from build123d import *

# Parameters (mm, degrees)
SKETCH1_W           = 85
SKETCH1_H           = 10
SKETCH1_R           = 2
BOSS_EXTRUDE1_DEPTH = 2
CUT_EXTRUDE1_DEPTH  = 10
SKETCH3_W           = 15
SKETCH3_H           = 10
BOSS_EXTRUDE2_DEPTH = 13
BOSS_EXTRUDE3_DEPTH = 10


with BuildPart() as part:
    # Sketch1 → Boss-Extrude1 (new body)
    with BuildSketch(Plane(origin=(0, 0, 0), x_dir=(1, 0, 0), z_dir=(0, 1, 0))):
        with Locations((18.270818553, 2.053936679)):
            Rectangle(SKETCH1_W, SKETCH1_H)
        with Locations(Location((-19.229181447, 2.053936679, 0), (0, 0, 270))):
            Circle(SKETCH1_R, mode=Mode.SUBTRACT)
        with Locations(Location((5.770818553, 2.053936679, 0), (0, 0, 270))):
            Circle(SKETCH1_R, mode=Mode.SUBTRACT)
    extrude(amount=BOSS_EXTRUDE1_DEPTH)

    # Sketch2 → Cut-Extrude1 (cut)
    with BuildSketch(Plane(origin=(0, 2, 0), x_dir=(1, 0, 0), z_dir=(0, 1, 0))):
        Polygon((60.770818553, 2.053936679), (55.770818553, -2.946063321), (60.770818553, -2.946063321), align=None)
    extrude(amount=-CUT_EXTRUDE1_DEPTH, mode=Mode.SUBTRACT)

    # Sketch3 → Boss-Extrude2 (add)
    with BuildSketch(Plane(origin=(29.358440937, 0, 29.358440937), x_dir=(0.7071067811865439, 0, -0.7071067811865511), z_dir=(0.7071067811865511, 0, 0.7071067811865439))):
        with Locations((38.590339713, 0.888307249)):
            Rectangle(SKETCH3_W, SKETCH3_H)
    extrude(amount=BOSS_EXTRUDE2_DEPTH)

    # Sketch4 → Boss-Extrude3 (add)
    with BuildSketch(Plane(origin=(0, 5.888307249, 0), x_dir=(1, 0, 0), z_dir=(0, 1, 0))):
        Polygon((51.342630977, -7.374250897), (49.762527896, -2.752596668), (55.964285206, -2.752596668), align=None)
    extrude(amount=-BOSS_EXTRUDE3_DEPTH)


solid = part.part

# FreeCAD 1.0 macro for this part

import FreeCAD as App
import Part
import Sketcher
Q = App.Units.Quantity

doc = App.newDocument("Part")
body = doc.addObject("PartDesign::Body", "Body")

# Sketch on XZ plane
sketch1 = body.newObject("Sketcher::SketchObject", "Sketch")
sketch1.AttachmentSupport = (doc.getObject("XZ_Plane"), [""])
sketch1.MapMode = "FlatFace"
sketch1.addGeometry([
    Part.LineSegment(App.Vector(-24.2, -7.1, 0), App.Vector(-24.2, 2.9, 0)),  # 0
    Part.LineSegment(App.Vector(-24.2, 2.9, 0), App.Vector(60.8, 2.9, 0)),  # 1
    Part.LineSegment(App.Vector(60.8, 2.9, 0), App.Vector(60.8, -7.1, 0)),  # 2
    Part.LineSegment(App.Vector(60.8, -7.1, 0), App.Vector(-24.2, -7.1, 0)),  # 3
    Part.Circle(App.Vector(-19.2, -2.1, 0), App.Vector(0, 0, 1), 2),  # 4
    Part.Circle(App.Vector(5.8, -2.1, 0), App.Vector(0, 0, 1), 2),  # 5
], False)
sketch1.addConstraint([
    Sketcher.Constraint("Coincident", 0, 2, 1, 1),
    Sketcher.Constraint("Coincident", 1, 2, 2, 1),
    Sketcher.Constraint("Coincident", 2, 2, 3, 1),
    Sketcher.Constraint("Coincident", 3, 2, 0, 1),
    Sketcher.Constraint("Vertical", 0),
    Sketcher.Constraint("Horizontal", 1),
    Sketcher.Constraint("Vertical", 2),
    Sketcher.Constraint("Horizontal", 3),
    Sketcher.Constraint("Equal", 4, 5),
    Sketcher.Constraint("Horizontal", 4, 3, 5, 3),
    Sketcher.Constraint("Diameter", 4, Q("4 mm")),
    Sketcher.Constraint("DistanceX", 1, 1, 1, 2, Q("85 mm")),
    Sketcher.Constraint("DistanceY", 0, 1, 0, 2, Q("10 mm")),
    Sketcher.Constraint("DistanceX", 4, 3, 5, 3, Q("25 mm")),
    Sketcher.Constraint("DistanceX", 0, 2, 4, 3, Q("5 mm")),
    Sketcher.Constraint("DistanceY", 4, 3, 0, 2, Q("5 mm")),
    Sketcher.Constraint("DistanceX", 4, 3, -1, 1, Q("19.229181 mm")),
    Sketcher.Constraint("DistanceY", 4, 3, -1, 1, Q("2.053937 mm")),
])
pad1 = body.newObject("PartDesign::Pad", "Pad")
pad1.Profile = sketch1
pad1.Length = 2
pad1.Reversed = True

# Sketch on XZ plane
sketch2 = body.newObject("Sketcher::SketchObject", "Sketch001")
sketch2.AttachmentSupport = (doc.getObject("XZ_Plane"), [""])
sketch2.MapMode = "FlatFace"
sketch2.AttachmentOffset = App.Placement(App.Vector(0, 0, -2), App.Rotation())
sketch2.addGeometry([
    Part.LineSegment(App.Vector(61, -2, 0), App.Vector(56, 3, 0)),
    Part.LineSegment(App.Vector(56, 3, 0), App.Vector(61, 3, 0)),
    Part.LineSegment(App.Vector(61, 3, 0), App.Vector(61, -2, 0)),
], False)
sketch2.addConstraint([
    Sketcher.Constraint("Coincident", 0, 2, 1, 1),
    Sketcher.Constraint("Coincident", 1, 2, 2, 1),
    Sketcher.Constraint("Coincident", 2, 2, 0, 1),
    Sketcher.Constraint("Horizontal", 1),
    Sketcher.Constraint("Vertical", 2),
    Sketcher.Constraint("Equal", 1, 2),
    Sketcher.Constraint("DistanceX", 1, 1, 1, 2, Q("5 mm")),
    Sketcher.Constraint("DistanceX", -1, 1, 0, 2, Q("55.770819 mm")),
    Sketcher.Constraint("DistanceY", -1, 1, 0, 2, Q("2.946063 mm")),
])
pocket1 = body.newObject("PartDesign::Pocket", "Pocket")
pocket1.Profile = sketch2
pocket1.Length = 10
pocket1.Reversed = True

# Sketch on an angled plane
sketch3 = body.newObject("Sketcher::SketchObject", "Sketch002")
sketch3.Placement = App.Placement(App.Vector(29.358441, 0, 29.358441), App.Rotation(App.Vector(0.707106781, 0, -0.707106781), App.Vector(0, 0.999999999, 0), App.Vector(0.707106781, 0, 0.707106781), "ZXY"))
sketch3.addGeometry([
    Part.LineSegment(App.Vector(31, 6, 0), App.Vector(31, -4, 0)),
    Part.LineSegment(App.Vector(31, -4, 0), App.Vector(46, -4, 0)),
    Part.LineSegment(App.Vector(46, -4, 0), App.Vector(46, 6, 0)),
    Part.LineSegment(App.Vector(46, 6, 0), App.Vector(31, 6, 0)),
], False)
sketch3.addConstraint([
    Sketcher.Constraint("Coincident", 0, 2, 1, 1),
    Sketcher.Constraint("Coincident", 1, 2, 2, 1),
    Sketcher.Constraint("Coincident", 2, 2, 3, 1),
    Sketcher.Constraint("Coincident", 3, 2, 0, 1),
    Sketcher.Constraint("Vertical", 0),
    Sketcher.Constraint("Horizontal", 1),
    Sketcher.Constraint("Vertical", 2),
    Sketcher.Constraint("Horizontal", 3),
    Sketcher.Constraint("DistanceX", 1, 1, 1, 2, Q("15 mm")),
    Sketcher.Constraint("DistanceY", 0, 2, 0, 1, Q("10 mm")),
    Sketcher.Constraint("DistanceX", -1, 1, 0, 2, Q("31.09034 mm")),
    Sketcher.Constraint("DistanceY", 0, 2, -1, 1, Q("4.111693 mm")),
])
pad2 = body.newObject("PartDesign::Pad", "Pad001")
pad2.Profile = sketch3
pad2.Length = 13

# Sketch on XZ plane
sketch4 = body.newObject("Sketcher::SketchObject", "Sketch003")
sketch4.AttachmentSupport = (doc.getObject("XZ_Plane"), [""])
sketch4.MapMode = "FlatFace"
sketch4.AttachmentOffset = App.Placement(App.Vector(0, 0, -5.888307), App.Rotation())
sketch4.addGeometry([
    Part.LineSegment(App.Vector(49.8, 2.8, 0), App.Vector(51.3, 7.4, 0)),
    Part.LineSegment(App.Vector(51.3, 7.4, 0), App.Vector(56, 2.8, 0)),
    Part.LineSegment(App.Vector(56, 2.8, 0), App.Vector(49.8, 2.8, 0)),
], False)
sketch4.addConstraint([
    Sketcher.Constraint("Coincident", 0, 2, 1, 1),
    Sketcher.Constraint("Coincident", 1, 2, 2, 1),
    Sketcher.Constraint("Coincident", 2, 2, 0, 1),
    Sketcher.Constraint("Horizontal", 2),
    Sketcher.Constraint("Angle", 1, Q("-45 deg")),
    Sketcher.Constraint("DistanceX", 2, 2, 2, 1, Q("6.201757 mm")),
    Sketcher.Constraint("DistanceX", -1, 1, 0, 2, Q("51.342631 mm")),
    Sketcher.Constraint("DistanceY", -1, 1, 0, 2, Q("7.374251 mm")),
    Sketcher.Constraint("Distance", 0, Q("4.884303 mm")),
])
pad3 = body.newObject("PartDesign::Pad", "Pad002")
pad3.Profile = sketch4
pad3.Length = 10

doc.recompute()
